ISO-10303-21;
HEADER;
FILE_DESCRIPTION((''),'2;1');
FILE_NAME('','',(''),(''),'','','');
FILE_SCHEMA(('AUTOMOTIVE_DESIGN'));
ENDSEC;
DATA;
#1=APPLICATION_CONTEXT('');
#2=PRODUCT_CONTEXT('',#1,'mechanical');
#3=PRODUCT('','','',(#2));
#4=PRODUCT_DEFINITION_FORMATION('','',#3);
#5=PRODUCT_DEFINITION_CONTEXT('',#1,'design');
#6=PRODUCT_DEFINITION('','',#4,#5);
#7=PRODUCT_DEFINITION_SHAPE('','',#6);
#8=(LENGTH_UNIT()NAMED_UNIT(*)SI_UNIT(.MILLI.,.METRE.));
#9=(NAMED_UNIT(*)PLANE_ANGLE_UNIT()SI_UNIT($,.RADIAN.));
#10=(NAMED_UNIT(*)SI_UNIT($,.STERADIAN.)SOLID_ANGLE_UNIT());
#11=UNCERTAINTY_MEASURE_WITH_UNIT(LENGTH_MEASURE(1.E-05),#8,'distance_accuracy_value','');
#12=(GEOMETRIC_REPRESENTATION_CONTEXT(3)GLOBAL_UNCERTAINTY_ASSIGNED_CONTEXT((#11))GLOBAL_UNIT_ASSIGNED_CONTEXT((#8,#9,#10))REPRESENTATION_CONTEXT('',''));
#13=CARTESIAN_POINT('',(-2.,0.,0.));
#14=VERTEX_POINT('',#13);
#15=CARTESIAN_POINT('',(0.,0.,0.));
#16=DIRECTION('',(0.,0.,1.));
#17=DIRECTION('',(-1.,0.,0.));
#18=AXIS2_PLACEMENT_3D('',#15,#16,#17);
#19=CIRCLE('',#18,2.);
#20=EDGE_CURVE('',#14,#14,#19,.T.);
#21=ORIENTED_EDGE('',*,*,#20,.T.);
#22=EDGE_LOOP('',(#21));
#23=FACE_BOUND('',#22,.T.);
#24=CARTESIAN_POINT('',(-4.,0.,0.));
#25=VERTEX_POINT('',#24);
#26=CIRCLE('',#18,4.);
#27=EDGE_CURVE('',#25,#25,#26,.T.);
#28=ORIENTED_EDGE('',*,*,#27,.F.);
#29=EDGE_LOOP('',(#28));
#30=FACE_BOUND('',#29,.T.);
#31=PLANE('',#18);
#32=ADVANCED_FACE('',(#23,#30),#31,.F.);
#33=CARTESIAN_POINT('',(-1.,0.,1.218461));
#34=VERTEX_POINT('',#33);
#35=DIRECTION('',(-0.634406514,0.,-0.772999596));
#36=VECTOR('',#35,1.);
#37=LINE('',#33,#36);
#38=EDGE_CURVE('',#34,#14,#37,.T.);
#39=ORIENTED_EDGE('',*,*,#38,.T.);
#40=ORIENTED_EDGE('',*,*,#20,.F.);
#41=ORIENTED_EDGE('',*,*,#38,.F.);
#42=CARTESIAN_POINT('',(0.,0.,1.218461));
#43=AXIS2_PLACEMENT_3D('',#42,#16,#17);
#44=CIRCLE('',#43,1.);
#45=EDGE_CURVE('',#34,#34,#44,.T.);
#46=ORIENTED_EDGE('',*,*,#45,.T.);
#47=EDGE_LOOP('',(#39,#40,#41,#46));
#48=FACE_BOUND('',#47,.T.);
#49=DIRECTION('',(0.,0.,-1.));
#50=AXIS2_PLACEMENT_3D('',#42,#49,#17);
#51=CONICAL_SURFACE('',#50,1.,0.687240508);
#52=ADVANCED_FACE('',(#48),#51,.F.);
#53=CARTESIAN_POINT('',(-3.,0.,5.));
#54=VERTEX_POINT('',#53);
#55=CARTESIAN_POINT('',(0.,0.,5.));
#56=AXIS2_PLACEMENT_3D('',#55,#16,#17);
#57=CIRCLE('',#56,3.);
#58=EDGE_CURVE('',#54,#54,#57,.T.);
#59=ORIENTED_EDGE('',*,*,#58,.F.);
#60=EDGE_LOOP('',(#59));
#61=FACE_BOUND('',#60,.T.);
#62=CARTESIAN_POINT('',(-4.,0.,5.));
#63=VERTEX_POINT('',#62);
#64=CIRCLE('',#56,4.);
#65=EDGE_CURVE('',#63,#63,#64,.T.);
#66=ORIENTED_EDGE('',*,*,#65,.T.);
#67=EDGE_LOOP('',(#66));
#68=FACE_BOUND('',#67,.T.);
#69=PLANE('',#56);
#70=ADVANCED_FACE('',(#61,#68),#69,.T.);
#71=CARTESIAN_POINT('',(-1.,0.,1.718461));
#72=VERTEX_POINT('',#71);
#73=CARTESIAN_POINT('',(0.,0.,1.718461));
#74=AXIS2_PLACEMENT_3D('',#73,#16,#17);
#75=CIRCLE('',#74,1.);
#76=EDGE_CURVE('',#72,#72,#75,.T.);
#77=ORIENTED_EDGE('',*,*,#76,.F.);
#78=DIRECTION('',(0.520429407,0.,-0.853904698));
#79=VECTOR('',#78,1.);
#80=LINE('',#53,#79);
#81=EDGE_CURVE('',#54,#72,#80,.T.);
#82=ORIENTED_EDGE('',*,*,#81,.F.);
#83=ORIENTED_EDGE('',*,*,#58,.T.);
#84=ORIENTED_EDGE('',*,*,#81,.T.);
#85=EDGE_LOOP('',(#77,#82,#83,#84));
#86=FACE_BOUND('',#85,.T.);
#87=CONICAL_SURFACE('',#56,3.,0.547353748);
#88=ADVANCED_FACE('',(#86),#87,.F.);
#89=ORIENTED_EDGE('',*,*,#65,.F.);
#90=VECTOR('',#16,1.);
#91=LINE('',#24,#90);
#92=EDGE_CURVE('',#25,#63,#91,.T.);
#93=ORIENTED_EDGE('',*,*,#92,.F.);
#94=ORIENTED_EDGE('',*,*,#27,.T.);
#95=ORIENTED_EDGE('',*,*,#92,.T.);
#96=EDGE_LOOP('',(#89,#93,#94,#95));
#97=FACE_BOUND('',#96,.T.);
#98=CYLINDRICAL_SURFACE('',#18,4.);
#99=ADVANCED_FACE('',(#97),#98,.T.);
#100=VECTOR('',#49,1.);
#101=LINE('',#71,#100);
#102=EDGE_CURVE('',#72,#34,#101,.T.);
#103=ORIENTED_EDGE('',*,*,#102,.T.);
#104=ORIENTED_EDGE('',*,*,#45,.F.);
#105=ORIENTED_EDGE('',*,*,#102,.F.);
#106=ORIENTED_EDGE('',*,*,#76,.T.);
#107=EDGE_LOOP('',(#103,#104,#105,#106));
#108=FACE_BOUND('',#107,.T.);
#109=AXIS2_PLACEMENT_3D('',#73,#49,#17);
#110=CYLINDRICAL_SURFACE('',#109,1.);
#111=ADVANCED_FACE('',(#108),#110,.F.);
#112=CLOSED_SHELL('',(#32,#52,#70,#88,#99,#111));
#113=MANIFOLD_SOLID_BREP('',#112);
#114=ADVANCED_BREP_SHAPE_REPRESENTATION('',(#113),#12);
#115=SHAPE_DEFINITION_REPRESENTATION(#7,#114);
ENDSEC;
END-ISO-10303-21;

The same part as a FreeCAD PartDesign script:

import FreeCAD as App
import Part
import Sketcher
from FreeCAD import Vector
Q = App.Units.Quantity

doc = App.newDocument("Part")
body = doc.addObject("PartDesign::Body", "Body")

sketch1 = body.newObject("Sketcher::SketchObject", "Sketch")
sketch1.AttachmentSupport = (doc.getObject("XZ_Plane"), [""])
sketch1.MapMode = "FlatFace"
sketch1.addGeometry([
    Part.LineSegment(Vector(-4, 0, 0), Vector(-4, 5, 0)),
    Part.LineSegment(Vector(-4, 5, 0), Vector(-3, 5, 0)),
    Part.LineSegment(Vector(-3, 5, 0), Vector(-1, 1.7, 0)),
    Part.LineSegment(Vector(-1, 1.7, 0), Vector(-1, 1.2, 0)),
    Part.LineSegment(Vector(-1, 1.2, 0), Vector(-2, 0, 0)),
    Part.LineSegment(Vector(-2, 0, 0), Vector(-4, 0, 0)),
], False)
sketch1.addConstraint([
    Sketcher.Constraint("Coincident", 0, 2, 1, 1),
    Sketcher.Constraint("Coincident", 1, 2, 2, 1),
    Sketcher.Constraint("Coincident", 2, 2, 3, 1),
    Sketcher.Constraint("Coincident", 3, 2, 4, 1),
    Sketcher.Constraint("Coincident", 4, 2, 5, 1),
    Sketcher.Constraint("Coincident", 5, 2, 0, 1),
    Sketcher.Constraint("Vertical", 0),
    Sketcher.Constraint("Horizontal", 1),
    Sketcher.Constraint("Vertical", 3),
    Sketcher.Constraint("Horizontal", 5),
    Sketcher.Constraint("PointOnObject", 4, 2, -1),
    Sketcher.Constraint("DistanceX", 1, 1, 1, 2, Q("1 mm")),
    Sketcher.Constraint("DistanceX", 5, 2, 5, 1, Q("2 mm")),
    Sketcher.Constraint("DistanceY", 0, 1, 0, 2, Q("5 mm")),
    Sketcher.Constraint("DistanceY", 3, 2, 3, 1, Q("0.5 mm")),
    Sketcher.Constraint("DistanceX", 0, 2, -1, 1, Q("4 mm")),
    Sketcher.Constraint("DistanceX", 2, 2, -1, 1, Q("1 mm")),
    Sketcher.Constraint("Distance", 2, Q("3.84298 mm")),
])
revolution = body.newObject("PartDesign::Revolution", "Revolution")
revolution.Profile = sketch1
revolution.ReferenceAxis = (sketch1, ["V_Axis"])
revolution.Angle = 360

doc.recompute()
